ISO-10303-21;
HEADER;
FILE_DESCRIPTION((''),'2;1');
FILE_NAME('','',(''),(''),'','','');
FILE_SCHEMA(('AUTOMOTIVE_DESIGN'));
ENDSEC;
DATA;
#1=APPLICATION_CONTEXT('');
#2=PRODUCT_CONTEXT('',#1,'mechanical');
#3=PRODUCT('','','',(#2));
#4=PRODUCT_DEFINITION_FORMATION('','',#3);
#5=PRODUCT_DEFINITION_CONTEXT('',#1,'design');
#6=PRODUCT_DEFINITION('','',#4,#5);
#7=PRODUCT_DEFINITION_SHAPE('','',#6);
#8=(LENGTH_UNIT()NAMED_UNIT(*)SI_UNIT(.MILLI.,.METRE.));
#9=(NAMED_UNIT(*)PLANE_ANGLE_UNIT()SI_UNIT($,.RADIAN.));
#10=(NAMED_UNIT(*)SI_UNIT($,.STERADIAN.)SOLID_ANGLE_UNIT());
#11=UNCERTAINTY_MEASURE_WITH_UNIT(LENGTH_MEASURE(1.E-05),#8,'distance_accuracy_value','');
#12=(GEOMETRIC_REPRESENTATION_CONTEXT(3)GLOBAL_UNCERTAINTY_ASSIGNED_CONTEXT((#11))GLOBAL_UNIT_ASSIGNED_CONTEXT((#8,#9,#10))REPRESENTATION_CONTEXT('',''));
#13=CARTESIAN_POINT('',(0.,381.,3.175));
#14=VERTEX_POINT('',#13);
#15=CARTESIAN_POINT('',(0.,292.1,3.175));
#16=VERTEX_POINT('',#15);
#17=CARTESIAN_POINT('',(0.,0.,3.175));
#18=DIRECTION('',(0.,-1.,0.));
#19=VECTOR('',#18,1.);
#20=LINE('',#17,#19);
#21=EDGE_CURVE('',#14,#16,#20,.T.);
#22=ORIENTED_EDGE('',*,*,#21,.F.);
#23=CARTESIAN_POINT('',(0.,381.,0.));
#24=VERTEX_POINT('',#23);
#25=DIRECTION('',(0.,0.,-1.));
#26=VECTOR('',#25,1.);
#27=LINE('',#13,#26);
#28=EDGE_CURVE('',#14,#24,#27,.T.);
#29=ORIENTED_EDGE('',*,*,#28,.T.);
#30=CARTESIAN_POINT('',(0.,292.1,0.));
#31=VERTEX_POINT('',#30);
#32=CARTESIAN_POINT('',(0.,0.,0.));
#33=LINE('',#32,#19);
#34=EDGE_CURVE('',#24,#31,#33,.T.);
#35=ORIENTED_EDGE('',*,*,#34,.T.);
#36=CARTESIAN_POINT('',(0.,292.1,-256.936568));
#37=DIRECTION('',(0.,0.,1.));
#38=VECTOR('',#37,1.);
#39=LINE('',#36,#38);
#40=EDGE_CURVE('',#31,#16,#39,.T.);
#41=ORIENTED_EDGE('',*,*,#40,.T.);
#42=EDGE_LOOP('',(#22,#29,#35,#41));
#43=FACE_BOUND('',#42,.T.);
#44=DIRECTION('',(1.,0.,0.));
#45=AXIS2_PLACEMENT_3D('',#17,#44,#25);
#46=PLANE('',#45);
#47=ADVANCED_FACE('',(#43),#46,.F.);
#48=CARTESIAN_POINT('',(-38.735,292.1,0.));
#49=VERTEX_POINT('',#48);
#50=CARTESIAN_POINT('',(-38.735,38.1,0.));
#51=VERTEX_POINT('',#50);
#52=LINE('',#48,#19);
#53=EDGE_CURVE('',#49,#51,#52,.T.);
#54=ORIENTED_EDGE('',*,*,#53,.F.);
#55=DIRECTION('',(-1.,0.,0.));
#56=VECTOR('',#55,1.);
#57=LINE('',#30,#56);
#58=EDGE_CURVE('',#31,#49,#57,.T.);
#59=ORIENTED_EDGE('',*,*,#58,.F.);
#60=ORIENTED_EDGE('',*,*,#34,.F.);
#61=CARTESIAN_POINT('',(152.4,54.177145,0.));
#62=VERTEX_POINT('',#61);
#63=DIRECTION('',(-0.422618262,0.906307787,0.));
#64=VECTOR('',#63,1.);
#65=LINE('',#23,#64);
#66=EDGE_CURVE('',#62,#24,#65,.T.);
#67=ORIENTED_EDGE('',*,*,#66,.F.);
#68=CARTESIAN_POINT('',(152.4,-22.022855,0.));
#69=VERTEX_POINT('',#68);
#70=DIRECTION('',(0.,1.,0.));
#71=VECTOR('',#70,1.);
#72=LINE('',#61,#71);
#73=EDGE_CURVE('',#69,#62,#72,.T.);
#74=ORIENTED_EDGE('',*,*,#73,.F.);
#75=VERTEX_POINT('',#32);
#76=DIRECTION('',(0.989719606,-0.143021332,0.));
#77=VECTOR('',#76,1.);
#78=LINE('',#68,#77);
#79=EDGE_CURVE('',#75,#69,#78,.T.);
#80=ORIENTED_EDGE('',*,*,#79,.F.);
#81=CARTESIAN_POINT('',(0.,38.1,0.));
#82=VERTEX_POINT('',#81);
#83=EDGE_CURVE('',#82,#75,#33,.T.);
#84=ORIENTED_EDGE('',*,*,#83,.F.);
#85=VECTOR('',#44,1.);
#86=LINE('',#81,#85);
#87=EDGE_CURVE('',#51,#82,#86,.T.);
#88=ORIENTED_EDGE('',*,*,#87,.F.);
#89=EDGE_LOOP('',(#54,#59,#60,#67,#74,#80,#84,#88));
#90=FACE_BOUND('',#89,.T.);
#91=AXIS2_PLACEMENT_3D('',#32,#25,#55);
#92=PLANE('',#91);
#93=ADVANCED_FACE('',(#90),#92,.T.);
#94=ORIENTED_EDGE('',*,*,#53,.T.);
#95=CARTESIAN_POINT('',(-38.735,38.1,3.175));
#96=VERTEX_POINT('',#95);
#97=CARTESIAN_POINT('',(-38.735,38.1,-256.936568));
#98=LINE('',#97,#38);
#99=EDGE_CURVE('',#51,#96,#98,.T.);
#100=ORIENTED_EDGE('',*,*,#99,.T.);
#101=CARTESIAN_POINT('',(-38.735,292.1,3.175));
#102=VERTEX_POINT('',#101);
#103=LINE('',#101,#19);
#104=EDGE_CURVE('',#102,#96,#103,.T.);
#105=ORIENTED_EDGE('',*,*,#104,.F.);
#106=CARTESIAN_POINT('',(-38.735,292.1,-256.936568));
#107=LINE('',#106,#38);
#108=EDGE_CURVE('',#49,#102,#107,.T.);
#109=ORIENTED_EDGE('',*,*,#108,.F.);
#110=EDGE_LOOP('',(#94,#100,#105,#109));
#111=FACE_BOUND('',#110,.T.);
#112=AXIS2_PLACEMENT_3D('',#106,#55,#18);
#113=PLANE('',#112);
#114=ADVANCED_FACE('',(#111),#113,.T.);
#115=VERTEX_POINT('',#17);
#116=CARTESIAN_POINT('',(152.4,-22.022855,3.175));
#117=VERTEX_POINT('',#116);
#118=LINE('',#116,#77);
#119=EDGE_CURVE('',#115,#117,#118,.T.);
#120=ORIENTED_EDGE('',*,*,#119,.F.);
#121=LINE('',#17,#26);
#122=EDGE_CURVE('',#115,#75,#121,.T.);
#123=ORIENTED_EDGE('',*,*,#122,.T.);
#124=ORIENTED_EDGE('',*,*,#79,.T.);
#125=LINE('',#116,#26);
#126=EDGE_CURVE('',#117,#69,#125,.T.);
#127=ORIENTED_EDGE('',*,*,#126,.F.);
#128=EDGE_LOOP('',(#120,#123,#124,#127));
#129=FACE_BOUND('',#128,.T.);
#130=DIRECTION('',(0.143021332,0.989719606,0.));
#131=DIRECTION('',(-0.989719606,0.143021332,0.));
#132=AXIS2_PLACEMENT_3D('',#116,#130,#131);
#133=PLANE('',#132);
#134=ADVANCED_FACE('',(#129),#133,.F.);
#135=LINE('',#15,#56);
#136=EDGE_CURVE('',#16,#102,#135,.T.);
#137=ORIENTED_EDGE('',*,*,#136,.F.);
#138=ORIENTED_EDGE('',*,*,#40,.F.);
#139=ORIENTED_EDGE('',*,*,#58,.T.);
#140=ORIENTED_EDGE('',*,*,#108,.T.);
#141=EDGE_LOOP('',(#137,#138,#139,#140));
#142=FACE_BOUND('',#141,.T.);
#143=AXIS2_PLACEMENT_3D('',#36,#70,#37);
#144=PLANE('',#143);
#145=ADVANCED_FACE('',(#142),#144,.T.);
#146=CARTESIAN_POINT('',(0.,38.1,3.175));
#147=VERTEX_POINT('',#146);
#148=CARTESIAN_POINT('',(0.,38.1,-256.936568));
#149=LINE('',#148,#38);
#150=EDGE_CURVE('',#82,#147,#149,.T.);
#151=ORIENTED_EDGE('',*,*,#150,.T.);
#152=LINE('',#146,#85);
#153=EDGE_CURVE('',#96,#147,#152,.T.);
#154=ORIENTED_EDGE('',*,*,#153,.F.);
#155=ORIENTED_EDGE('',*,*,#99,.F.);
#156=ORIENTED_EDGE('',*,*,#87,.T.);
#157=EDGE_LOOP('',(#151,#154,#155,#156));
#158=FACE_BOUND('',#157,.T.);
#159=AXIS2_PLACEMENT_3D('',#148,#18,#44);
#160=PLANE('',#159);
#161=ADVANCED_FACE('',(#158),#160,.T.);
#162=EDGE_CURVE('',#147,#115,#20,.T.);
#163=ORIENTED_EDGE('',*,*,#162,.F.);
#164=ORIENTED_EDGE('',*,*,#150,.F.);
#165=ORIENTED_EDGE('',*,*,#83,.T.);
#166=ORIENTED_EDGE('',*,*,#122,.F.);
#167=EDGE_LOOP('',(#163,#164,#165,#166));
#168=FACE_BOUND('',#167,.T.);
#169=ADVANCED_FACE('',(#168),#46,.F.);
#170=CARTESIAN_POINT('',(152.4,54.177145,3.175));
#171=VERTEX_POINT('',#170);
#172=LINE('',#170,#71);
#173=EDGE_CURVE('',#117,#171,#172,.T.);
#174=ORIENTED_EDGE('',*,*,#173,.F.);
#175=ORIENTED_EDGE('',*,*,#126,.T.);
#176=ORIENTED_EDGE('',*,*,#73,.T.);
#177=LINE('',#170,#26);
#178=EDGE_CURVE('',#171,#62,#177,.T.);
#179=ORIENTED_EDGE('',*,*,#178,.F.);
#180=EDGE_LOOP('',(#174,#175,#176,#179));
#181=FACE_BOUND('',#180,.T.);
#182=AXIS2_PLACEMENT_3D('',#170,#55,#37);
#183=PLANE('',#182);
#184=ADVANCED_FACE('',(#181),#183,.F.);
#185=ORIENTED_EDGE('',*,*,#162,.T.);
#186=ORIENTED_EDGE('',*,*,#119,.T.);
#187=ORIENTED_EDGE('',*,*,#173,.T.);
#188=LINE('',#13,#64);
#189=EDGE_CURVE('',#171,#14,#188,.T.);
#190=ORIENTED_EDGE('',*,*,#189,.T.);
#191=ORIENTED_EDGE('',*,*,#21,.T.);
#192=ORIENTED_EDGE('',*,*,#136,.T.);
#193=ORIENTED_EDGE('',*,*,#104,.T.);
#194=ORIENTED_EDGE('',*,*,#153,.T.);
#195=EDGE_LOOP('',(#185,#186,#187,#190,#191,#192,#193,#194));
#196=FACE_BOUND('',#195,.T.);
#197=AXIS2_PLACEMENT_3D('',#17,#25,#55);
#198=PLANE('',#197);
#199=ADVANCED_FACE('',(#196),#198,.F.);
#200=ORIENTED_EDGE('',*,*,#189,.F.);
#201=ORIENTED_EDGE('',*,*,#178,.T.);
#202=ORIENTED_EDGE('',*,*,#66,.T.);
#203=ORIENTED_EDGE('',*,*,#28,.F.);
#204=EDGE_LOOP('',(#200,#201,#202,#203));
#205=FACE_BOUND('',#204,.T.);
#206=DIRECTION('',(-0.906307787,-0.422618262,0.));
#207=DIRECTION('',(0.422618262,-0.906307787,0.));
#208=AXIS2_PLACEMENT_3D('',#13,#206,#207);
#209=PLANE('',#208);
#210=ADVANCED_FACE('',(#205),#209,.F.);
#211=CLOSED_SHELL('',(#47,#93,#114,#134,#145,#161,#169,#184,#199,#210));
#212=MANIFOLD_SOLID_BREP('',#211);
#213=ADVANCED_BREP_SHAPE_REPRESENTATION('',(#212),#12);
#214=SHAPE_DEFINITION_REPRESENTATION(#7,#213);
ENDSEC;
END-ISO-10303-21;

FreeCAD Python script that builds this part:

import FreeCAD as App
import Part
import Sketcher
Q = App.Units.Quantity

doc = App.newDocument("Part")
body = doc.addObject("PartDesign::Body", "Body")

# Sketch on XY plane
sketch1 = body.newObject("Sketcher::SketchObject", "Sketch")
sketch1.AttachmentSupport = (doc.getObject("XY_Plane"), [""])
sketch1.MapMode = "FlatFace"
sketch1.addGeometry(Part.LineSegment(App.Vector(0, 381, 0), App.Vector(0, 0, 0)), False)
sketch1.addGeometry(Part.LineSegment(App.Vector(0, 0, 0), App.Vector(152, -22, 0)), False)
sketch1.addGeometry(Part.LineSegment(App.Vector(152, -22, 0), App.Vector(152, 54, 0)), False)
sketch1.addGeometry(Part.LineSegment(App.Vector(152, 54, 0), App.Vector(0, 381, 0)), False)
sketch1.addConstraint(Sketcher.Constraint("Coincident", 0, 2, 1, 1))
sketch1.addConstraint(Sketcher.Constraint("Coincident", 1, 2, 2, 1))
sketch1.addConstraint(Sketcher.Constraint("Coincident", 2, 2, 3, 1))
sketch1.addConstraint(Sketcher.Constraint("Coincident", 3, 2, 0, 1))
sketch1.addConstraint(Sketcher.Constraint("Vertical", 0))
sketch1.addConstraint(Sketcher.Constraint("Vertical", 2))
sketch1.addConstraint(Sketcher.Constraint("Coincident", 0, 2, -1, 1))
sketch1.addConstraint(Sketcher.Constraint("DistanceY", 0, 2, 0, 1, Q("15 in")))
sketch1.addConstraint(Sketcher.Constraint("DistanceY", 2, 1, 2, 2, Q("3 in")))
sketch1.addConstraint(Sketcher.Constraint("DistanceX", -1, 1, 1, 2, Q("6 in")))
sketch1.addConstraint(Sketcher.Constraint("Angle", 3, Q("115 deg")))
pad1 = body.newObject("PartDesign::Pad", "Pad")
pad1.Profile = sketch1
pad1.Length = Q("0.125 in")

# Sketch on XY plane
sketch2 = body.newObject("Sketcher::SketchObject", "Sketch001")
sketch2.AttachmentSupport = (doc.getObject("XY_Plane"), [""])
sketch2.MapMode = "FlatFace"
sketch2.AttachmentOffset = App.Placement(App.Vector(0, 0, 0.125 * 25.4), App.Rotation())
sketch2.addGeometry(Part.LineSegment(App.Vector(-39, 292, 0), App.Vector(-39, 38, 0)), False)
sketch2.addGeometry(Part.LineSegment(App.Vector(-39, 38, 0), App.Vector(0, 38, 0)), False)
sketch2.addGeometry(Part.LineSegment(App.Vector(0, 38, 0), App.Vector(0, 292, 0)), False)
sketch2.addGeometry(Part.LineSegment(App.Vector(0, 292, 0), App.Vector(-39, 292, 0)), False)
sketch2.addConstraint(Sketcher.Constraint("Coincident", 0, 2, 1, 1))
sketch2.addConstraint(Sketcher.Constraint("Coincident", 1, 2, 2, 1))
sketch2.addConstraint(Sketcher.Constraint("Coincident", 2, 2, 3, 1))
sketch2.addConstraint(Sketcher.Constraint("Coincident", 3, 2, 0, 1))
sketch2.addConstraint(Sketcher.Constraint("Vertical", 0))
sketch2.addConstraint(Sketcher.Constraint("Horizontal", 1))
sketch2.addConstraint(Sketcher.Constraint("Vertical", 2))
sketch2.addConstraint(Sketcher.Constraint("Horizontal", 3))
sketch2.addConstraint(Sketcher.Constraint("PointOnObject", 1, 2, -2))
sketch2.addConstraint(Sketcher.Constraint("DistanceY", 0, 2, 0, 1, Q("10 in")))
sketch2.addConstraint(Sketcher.Constraint("DistanceY", -1, 1, 0, 2, Q("1.5 in")))
sketch2.addConstraint(Sketcher.Constraint("DistanceX", 1, 1, 1, 2, Q("1.525 in")))
pad2 = body.newObject("PartDesign::Pad", "Pad001")
pad2.Profile = sketch2
pad2.Length = Q("0.125 in")
pad2.Reversed = True

doc.recompute()
